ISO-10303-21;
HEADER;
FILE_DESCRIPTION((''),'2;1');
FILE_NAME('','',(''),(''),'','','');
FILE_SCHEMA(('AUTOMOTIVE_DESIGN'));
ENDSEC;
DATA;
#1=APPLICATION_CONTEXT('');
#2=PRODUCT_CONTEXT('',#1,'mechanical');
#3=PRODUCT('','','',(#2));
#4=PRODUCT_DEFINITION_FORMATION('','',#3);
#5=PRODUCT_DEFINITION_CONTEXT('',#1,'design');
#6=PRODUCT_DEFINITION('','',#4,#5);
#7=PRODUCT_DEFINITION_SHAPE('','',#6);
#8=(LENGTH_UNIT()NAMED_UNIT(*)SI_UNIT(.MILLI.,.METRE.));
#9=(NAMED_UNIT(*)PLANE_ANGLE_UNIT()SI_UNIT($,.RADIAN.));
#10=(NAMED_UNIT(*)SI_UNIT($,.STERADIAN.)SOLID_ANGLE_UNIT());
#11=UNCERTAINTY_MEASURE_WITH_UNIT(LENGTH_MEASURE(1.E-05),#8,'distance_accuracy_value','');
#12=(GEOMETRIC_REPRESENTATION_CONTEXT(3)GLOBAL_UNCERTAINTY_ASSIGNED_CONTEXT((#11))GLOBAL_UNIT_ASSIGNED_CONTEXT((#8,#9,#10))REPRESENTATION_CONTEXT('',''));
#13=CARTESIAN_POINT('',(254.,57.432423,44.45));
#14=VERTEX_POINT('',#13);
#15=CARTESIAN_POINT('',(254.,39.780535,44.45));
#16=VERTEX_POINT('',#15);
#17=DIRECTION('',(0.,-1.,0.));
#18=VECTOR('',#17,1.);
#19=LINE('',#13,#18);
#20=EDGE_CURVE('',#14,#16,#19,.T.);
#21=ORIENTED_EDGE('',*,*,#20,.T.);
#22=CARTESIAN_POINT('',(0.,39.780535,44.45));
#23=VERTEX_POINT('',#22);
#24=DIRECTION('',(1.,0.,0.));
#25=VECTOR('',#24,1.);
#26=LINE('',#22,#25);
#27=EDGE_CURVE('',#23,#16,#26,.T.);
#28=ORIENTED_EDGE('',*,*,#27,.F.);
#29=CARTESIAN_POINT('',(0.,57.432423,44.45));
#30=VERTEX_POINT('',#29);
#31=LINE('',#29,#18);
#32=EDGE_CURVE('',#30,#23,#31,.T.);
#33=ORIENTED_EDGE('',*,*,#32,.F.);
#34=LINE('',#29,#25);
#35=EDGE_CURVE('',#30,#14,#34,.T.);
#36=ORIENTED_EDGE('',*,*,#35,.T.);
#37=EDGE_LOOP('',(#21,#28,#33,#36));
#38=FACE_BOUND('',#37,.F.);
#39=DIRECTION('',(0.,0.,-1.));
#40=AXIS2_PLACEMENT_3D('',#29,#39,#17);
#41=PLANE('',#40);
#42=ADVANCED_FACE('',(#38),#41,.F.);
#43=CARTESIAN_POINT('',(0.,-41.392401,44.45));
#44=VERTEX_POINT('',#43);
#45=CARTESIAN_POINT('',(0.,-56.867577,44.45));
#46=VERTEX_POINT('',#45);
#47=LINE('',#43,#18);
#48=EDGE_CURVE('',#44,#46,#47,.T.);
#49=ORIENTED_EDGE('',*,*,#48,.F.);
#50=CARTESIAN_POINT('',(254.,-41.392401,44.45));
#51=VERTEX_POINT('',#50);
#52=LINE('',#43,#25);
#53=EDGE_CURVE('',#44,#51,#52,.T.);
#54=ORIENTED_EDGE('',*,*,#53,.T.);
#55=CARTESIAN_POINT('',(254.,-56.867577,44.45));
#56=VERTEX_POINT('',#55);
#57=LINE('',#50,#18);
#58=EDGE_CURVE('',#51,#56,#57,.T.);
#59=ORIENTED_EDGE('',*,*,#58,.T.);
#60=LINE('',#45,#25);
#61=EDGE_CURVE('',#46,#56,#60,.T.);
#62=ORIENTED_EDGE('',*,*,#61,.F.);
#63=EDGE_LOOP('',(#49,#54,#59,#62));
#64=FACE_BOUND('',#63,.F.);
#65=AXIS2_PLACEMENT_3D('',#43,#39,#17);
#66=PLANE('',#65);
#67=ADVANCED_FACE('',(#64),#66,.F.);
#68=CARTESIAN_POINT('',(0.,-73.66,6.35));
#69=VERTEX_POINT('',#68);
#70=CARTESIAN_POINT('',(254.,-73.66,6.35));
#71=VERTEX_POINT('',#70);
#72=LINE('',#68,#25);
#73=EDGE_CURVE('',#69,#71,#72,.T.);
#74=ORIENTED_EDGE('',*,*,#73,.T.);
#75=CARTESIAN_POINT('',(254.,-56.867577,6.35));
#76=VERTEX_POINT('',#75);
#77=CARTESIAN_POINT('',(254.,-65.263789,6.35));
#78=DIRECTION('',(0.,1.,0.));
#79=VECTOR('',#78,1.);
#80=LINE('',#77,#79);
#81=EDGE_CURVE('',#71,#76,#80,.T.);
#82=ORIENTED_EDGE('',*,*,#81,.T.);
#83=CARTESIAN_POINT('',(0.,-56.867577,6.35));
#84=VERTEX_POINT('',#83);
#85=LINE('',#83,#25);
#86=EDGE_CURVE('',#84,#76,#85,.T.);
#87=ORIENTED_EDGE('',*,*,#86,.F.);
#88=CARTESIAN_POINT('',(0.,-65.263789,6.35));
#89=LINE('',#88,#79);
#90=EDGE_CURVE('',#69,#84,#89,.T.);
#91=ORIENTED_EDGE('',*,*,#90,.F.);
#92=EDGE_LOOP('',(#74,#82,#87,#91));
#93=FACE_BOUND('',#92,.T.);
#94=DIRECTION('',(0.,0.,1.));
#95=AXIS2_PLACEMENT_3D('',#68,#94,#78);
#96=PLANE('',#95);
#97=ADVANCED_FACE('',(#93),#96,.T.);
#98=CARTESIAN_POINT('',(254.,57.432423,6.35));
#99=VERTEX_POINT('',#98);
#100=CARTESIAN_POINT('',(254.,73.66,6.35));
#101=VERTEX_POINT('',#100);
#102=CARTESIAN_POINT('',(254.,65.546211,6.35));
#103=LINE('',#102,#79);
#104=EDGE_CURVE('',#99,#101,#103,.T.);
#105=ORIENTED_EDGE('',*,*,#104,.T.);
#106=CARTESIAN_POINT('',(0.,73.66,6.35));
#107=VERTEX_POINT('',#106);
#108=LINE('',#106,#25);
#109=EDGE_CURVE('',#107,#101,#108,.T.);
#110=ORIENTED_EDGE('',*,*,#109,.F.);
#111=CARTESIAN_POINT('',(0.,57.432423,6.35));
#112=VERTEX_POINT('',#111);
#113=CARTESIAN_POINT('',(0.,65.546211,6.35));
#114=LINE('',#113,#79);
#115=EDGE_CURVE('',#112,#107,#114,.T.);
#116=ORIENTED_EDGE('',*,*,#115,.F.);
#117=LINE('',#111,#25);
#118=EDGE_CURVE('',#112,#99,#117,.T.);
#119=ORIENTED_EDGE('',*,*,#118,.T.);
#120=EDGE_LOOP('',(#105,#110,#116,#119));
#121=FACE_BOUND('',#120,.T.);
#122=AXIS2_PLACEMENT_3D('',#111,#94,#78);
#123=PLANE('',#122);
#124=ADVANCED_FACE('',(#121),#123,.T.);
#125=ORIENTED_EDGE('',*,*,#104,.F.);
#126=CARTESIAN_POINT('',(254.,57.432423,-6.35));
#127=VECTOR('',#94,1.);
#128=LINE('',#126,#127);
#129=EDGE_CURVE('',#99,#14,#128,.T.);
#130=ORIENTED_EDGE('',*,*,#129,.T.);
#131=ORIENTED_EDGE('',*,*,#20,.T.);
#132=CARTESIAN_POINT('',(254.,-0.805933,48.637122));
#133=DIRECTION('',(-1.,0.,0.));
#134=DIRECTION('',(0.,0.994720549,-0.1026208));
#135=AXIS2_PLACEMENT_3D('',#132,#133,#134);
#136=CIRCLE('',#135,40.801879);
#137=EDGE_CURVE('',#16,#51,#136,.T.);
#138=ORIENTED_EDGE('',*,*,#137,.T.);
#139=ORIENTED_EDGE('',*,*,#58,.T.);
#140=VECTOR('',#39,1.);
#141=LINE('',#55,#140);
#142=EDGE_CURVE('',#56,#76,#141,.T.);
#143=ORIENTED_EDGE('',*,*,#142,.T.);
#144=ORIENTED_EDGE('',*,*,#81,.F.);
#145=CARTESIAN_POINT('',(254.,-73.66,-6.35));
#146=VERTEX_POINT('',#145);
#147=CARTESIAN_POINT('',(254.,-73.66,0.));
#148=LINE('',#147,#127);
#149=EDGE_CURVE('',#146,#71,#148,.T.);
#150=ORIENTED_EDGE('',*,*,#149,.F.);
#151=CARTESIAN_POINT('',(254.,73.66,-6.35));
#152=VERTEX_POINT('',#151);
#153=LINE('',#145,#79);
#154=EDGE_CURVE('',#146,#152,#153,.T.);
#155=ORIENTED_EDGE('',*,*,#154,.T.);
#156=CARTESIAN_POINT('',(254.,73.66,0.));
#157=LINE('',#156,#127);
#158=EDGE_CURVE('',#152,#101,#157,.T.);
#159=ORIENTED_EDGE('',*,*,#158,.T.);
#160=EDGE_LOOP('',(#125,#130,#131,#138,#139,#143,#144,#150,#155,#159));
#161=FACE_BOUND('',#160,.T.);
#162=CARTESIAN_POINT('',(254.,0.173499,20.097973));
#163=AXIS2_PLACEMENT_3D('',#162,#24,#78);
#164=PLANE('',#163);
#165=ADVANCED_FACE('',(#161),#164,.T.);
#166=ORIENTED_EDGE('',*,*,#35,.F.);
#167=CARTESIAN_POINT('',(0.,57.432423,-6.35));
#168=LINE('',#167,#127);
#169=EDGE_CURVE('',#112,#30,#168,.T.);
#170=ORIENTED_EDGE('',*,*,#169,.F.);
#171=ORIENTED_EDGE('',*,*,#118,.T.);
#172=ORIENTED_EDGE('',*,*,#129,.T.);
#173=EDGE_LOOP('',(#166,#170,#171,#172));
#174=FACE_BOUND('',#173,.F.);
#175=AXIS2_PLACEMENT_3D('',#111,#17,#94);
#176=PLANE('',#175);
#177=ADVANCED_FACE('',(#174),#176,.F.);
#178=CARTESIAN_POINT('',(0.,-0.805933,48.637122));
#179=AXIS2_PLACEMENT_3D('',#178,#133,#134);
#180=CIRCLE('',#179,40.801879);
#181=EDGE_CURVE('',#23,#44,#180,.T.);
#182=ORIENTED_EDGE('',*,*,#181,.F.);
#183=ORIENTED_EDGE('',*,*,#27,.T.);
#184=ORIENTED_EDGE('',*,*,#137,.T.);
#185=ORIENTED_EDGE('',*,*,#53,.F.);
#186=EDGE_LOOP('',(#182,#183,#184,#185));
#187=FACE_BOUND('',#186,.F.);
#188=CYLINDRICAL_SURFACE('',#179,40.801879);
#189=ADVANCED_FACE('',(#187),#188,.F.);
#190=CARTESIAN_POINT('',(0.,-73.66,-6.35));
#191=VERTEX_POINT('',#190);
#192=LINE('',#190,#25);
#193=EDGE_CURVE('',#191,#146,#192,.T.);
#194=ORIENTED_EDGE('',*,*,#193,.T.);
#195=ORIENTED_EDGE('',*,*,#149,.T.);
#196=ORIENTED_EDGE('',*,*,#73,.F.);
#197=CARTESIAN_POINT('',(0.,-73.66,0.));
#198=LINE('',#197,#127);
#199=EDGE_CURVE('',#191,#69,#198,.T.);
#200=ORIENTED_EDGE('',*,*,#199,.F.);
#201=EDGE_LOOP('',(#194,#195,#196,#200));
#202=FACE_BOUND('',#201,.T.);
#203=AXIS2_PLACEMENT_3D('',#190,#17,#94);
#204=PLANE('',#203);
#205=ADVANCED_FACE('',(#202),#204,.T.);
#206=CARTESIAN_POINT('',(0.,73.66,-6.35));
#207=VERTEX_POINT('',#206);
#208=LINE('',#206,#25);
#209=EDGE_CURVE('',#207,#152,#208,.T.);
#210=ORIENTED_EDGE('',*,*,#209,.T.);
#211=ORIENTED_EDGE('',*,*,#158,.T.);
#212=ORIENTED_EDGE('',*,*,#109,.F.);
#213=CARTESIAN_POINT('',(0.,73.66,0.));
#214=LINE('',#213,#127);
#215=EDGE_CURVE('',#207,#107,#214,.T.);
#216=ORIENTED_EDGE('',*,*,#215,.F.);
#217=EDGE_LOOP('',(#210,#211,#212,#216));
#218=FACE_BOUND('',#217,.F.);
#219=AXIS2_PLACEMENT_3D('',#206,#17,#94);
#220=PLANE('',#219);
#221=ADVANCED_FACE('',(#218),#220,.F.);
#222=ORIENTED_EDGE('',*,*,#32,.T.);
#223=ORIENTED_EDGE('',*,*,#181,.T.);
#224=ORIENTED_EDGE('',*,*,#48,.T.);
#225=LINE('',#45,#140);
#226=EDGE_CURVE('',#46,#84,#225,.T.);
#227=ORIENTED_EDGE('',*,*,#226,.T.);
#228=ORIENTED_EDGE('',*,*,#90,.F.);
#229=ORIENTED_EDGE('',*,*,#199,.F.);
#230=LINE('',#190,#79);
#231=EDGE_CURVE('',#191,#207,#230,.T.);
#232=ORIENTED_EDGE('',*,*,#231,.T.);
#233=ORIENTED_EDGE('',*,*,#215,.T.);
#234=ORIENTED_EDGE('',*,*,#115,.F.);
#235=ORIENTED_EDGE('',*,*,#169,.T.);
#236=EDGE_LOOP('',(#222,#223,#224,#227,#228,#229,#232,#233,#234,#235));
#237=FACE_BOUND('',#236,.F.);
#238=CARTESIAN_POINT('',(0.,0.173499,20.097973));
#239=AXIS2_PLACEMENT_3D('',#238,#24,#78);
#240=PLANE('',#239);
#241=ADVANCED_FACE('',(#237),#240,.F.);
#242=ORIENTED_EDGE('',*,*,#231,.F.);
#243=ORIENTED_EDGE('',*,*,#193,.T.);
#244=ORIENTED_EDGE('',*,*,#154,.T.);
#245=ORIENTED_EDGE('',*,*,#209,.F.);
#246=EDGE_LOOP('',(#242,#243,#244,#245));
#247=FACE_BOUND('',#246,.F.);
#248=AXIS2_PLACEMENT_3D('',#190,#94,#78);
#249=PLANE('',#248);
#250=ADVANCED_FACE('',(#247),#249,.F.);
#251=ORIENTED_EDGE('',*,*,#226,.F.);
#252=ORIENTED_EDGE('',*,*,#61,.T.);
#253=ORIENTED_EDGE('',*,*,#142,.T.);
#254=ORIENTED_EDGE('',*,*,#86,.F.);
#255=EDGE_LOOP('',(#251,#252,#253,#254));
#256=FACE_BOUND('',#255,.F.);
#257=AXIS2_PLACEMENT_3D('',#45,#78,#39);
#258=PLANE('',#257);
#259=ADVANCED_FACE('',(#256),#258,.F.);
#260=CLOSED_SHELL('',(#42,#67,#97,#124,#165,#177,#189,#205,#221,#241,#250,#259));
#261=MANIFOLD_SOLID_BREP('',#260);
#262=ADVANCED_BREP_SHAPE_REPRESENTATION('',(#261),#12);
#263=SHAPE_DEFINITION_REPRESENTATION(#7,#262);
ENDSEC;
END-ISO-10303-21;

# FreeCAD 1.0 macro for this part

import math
import FreeCAD as App
import Part
import Sketcher
Q = App.Units.Quantity

doc = App.newDocument("Part")
params = doc.addObject("Spreadsheet::Sheet", "Params")
for row, (alias, value) in enumerate([
    ("sketch1_width", "5.8 in"),
    ("sketch1_height", "1.5 in"),
    ("sketch1_height2", "0.5 in"),
    ("pad1_length", "10 in"),
], start=1):
    params.set(f"A{row}", alias)
    params.set(f"B{row}", "=" + value)
    params.setAlias(f"B{row}", alias)

body = doc.addObject("PartDesign::Body", "Body")

sketch1 = doc.addObject("Sketcher::SketchObject", "Sketch")
body.addObject(sketch1)
sketch1.AttachmentSupport = (doc.YZ_Plane, [""])
sketch1.MapMode = "FlatFace"
sketch1.addGeometry([
    Part.LineSegment(App.Vector(-57, 44, 0), App.Vector(-57, 6, 0)),
    Part.LineSegment(App.Vector(-57, 6, 0), App.Vector(-74, 6, 0)),
    Part.LineSegment(App.Vector(-74, 6, 0), App.Vector(-74, -6, 0)),
    Part.LineSegment(App.Vector(-74, -6, 0), App.Vector(74, -6, 0)),
    Part.LineSegment(App.Vector(74, -6, 0), App.Vector(74, 6, 0)),
    Part.LineSegment(App.Vector(74, 6, 0), App.Vector(57, 6, 0)),
    Part.LineSegment(App.Vector(57, 6, 0), App.Vector(57, 44, 0)),
    Part.LineSegment(App.Vector(57, 44, 0), App.Vector(40, 44, 0)),
    Part.ArcOfCircle(Part.Circle(App.Vector(-1, 49, 0), App.Vector(0, 0, 1), 41), math.radians(-174), math.radians(-6)),
    Part.LineSegment(App.Vector(-41, 44, 0), App.Vector(-57, 44, 0)),
], False)
sketch1.addConstraint([
    Sketcher.Constraint("Coincident", 0, 2, 1, 1),
    Sketcher.Constraint("Coincident", 1, 2, 2, 1),
    Sketcher.Constraint("Coincident", 2, 2, 3, 1),
    Sketcher.Constraint("Coincident", 3, 2, 4, 1),
    Sketcher.Constraint("Coincident", 4, 2, 5, 1),
    Sketcher.Constraint("Coincident", 5, 2, 6, 1),
    Sketcher.Constraint("Coincident", 6, 2, 7, 1),
    Sketcher.Constraint("Coincident", 7, 2, 8, 2),
    Sketcher.Constraint("Coincident", 8, 1, 9, 1),
    Sketcher.Constraint("Coincident", 9, 2, 0, 1),
    Sketcher.Constraint("Vertical", 0),
    Sketcher.Constraint("Horizontal", 1),
    Sketcher.Constraint("Vertical", 2),
    Sketcher.Constraint("Horizontal", 3),
    Sketcher.Constraint("Vertical", 4),
    Sketcher.Constraint("Horizontal", 5),
    Sketcher.Constraint("Vertical", 6),
    Sketcher.Constraint("Horizontal", 7),
    Sketcher.Constraint("Horizontal", 9),
    Sketcher.Constraint("Symmetric", 1, 2, 3, 2, -1, 1),
    Sketcher.Constraint("Horizontal", 1, 2, 4, 2),
    Sketcher.Constraint("Horizontal", 7, 2, 8, 1),
    Sketcher.Constraint("DistanceX", 3, 1, 3, 2, Q("5.8 in")),
    Sketcher.Constraint("DistanceY", 0, 2, 0, 1, Q("1.5 in")),
    Sketcher.Constraint("DistanceY", 2, 2, 2, 1, Q("0.5 in")),
    Sketcher.Constraint("DistanceX", 0, 2, 5, 2, Q("4.5 in")),
    Sketcher.Constraint("Radius", 8, Q("40.801879 mm")),
    Sketcher.Constraint("DistanceX", 7, 2, 7, 1, Q("17.651888 mm")),
    Sketcher.Constraint("DistanceX", 8, 1, -1, 1, Q("41.392401 mm")),
    Sketcher.Constraint("DistanceX", 1, 2, 1, 1, Q("16.792423 mm")),
])
sketch1.setExpression("Constraints[22]", "Params.sketch1_width")
sketch1.setExpression("Constraints[23]", "Params.sketch1_height")
sketch1.setExpression("Constraints[24]", "Params.sketch1_height2")
pad1 = doc.addObject("PartDesign::Pad", "Pad")
body.addObject(pad1)
pad1.Profile = sketch1
pad1.setExpression("Length", "Params.pad1_length")

doc.recompute()
